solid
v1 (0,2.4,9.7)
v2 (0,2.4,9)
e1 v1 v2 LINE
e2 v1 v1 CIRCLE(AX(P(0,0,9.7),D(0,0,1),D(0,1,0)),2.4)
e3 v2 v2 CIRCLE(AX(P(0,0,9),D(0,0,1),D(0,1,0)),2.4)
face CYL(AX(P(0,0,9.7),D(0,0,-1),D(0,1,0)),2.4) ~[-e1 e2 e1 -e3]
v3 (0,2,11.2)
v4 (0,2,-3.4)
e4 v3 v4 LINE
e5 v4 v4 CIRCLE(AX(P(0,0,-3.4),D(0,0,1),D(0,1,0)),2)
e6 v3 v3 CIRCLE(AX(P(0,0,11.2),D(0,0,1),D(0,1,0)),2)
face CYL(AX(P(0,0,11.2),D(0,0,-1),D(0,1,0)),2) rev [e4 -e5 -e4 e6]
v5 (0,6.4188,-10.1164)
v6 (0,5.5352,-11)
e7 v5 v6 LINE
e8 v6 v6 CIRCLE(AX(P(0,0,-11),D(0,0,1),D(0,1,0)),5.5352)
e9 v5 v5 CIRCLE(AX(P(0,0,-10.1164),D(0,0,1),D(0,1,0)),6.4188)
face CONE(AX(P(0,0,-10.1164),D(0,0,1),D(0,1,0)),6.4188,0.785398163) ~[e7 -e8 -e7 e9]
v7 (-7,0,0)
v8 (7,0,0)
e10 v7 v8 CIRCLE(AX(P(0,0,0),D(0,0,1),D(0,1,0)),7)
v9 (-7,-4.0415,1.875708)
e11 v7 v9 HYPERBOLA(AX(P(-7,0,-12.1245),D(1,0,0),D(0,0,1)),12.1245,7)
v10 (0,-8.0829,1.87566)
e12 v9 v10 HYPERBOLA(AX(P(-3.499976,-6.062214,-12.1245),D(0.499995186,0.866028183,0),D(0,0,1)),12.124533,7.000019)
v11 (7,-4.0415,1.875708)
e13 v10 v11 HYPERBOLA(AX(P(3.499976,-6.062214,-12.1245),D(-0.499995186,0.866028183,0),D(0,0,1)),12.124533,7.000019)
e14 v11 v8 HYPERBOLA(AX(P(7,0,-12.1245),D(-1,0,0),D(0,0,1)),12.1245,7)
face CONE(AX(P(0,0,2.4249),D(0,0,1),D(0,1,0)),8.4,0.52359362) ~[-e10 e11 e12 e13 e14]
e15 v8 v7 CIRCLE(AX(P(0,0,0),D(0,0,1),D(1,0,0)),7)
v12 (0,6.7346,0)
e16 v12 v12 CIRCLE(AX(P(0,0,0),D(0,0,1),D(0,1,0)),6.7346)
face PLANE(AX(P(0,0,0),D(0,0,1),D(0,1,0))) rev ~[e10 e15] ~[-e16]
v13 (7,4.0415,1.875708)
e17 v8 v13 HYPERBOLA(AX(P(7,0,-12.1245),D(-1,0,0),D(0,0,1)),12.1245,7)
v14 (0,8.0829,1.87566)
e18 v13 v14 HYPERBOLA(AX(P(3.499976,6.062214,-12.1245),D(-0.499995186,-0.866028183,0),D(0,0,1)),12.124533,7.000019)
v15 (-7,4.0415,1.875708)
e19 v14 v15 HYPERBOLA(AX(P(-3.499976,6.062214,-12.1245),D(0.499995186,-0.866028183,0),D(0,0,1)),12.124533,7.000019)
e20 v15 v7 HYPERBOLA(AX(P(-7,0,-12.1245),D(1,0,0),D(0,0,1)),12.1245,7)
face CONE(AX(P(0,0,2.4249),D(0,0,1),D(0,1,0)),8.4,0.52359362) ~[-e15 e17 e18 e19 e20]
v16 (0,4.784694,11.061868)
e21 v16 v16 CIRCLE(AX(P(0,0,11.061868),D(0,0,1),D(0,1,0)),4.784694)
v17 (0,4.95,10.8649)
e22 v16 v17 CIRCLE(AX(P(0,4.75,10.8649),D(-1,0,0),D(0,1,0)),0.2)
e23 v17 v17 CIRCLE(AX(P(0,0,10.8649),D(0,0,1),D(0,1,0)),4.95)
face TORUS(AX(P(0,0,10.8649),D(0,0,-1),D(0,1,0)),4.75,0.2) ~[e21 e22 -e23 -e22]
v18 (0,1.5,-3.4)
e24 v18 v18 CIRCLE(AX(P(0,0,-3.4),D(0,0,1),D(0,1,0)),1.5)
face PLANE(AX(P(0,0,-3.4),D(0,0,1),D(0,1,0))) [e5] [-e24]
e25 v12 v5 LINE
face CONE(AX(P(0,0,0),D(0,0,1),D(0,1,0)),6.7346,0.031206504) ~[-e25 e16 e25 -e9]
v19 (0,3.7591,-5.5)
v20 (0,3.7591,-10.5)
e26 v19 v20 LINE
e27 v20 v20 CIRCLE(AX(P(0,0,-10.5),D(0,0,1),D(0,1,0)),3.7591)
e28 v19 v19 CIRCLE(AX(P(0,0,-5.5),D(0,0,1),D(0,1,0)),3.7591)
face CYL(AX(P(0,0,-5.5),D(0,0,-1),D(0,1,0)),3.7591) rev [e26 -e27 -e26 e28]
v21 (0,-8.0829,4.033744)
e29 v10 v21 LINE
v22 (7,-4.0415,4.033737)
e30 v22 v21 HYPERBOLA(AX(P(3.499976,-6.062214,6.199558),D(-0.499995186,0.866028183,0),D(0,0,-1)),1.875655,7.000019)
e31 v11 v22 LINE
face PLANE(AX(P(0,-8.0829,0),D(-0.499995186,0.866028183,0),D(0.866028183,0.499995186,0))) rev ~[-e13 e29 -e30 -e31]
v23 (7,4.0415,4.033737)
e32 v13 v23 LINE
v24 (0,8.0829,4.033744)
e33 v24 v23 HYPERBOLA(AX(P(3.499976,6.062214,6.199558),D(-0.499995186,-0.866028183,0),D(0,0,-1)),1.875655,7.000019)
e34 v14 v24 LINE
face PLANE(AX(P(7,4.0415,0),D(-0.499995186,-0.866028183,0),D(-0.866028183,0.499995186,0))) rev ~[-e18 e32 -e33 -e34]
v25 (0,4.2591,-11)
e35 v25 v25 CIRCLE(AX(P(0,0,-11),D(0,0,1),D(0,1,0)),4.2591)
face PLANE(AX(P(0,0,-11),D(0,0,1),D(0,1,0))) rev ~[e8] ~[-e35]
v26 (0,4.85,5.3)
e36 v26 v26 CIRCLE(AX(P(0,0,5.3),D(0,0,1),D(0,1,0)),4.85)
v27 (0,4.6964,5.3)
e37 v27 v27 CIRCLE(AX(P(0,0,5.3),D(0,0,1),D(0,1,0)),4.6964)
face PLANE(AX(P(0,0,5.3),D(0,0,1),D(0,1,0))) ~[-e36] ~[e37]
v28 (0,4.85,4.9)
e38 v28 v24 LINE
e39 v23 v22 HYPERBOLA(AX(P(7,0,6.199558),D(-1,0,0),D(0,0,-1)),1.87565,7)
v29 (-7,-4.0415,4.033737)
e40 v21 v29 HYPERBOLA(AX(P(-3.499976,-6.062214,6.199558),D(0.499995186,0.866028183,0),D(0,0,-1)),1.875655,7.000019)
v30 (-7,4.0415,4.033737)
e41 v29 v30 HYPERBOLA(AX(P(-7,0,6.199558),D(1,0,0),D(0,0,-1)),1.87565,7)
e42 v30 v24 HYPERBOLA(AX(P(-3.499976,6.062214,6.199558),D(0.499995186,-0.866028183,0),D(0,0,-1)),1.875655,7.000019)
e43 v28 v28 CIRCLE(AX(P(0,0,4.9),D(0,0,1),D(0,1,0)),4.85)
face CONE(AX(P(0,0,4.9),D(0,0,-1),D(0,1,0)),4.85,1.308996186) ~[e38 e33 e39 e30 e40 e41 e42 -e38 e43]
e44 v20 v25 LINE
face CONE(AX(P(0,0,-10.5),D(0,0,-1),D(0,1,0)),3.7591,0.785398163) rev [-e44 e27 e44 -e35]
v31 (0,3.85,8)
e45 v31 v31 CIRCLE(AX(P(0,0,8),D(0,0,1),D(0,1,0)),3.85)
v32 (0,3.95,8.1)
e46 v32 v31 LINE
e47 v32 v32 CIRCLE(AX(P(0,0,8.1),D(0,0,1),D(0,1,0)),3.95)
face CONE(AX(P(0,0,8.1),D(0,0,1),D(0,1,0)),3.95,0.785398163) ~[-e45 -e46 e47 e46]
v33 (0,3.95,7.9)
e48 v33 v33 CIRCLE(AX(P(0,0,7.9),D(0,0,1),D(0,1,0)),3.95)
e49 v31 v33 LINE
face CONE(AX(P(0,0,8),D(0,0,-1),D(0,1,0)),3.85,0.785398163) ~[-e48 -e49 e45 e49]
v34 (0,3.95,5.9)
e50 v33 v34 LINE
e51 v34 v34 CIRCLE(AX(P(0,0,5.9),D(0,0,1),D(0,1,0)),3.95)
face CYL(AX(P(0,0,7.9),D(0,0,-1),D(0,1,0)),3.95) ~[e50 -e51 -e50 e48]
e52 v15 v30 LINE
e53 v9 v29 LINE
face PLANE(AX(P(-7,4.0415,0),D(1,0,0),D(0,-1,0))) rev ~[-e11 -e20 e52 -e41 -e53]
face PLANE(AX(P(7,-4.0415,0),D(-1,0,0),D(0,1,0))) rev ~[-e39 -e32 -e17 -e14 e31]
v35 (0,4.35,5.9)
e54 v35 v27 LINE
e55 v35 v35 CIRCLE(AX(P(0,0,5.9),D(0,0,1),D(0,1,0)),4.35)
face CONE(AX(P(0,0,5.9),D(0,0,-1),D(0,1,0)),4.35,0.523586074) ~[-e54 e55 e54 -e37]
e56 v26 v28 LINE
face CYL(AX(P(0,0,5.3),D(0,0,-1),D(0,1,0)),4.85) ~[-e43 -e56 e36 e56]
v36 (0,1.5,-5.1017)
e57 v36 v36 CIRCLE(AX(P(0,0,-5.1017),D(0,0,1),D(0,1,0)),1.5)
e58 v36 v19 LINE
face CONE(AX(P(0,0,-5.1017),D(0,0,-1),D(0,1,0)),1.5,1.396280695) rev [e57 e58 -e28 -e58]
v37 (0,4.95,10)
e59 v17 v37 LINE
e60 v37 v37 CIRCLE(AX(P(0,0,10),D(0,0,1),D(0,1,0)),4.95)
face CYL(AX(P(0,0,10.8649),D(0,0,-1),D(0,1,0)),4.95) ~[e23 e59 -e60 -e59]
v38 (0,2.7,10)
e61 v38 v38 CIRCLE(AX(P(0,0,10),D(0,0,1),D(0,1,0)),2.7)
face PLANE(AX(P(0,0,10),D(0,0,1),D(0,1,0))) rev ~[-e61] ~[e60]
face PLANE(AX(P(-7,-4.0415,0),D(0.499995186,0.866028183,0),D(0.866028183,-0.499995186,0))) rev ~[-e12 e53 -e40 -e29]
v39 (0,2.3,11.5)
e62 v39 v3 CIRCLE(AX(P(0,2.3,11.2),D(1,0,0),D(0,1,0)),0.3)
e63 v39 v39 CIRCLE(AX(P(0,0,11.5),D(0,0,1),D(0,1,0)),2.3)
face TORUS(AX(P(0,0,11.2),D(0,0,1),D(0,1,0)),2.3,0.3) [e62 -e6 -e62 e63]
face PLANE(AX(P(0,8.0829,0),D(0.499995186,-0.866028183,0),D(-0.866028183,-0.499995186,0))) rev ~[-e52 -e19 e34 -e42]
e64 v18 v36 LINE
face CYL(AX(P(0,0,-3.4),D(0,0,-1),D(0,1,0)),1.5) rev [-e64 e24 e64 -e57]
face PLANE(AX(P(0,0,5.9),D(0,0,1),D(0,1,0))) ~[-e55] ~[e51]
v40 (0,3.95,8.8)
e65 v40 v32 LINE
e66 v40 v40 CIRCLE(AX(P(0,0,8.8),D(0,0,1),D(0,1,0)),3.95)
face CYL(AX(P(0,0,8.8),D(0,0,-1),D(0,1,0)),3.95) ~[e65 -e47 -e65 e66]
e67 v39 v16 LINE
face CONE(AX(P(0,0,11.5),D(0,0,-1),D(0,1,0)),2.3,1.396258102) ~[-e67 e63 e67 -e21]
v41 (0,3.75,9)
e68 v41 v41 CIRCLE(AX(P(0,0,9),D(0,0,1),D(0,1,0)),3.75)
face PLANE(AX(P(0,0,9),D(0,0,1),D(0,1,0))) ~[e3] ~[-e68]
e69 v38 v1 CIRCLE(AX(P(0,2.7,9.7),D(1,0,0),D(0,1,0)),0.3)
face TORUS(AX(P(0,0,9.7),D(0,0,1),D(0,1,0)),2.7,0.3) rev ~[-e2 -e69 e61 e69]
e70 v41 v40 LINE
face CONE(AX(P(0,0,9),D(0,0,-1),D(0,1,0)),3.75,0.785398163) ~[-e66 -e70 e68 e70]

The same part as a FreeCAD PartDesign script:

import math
import FreeCAD as App
import Part
import Sketcher

V = App.Vector
Q = App.Units.Quantity

doc = App.newDocument("Part")
body = doc.addObject("PartDesign::Body", "Body")

sketch1 = body.newObject("Sketcher::SketchObject", "Sketch")
sketch1.AttachmentSupport = (doc.getObject("YZ_Plane"), [""])
sketch1.MapMode = "FlatFace"
sketch1.addGeometry([
    Part.LineSegment(V(2.3, 11.5, 0), V(0, 11.5, 0)),
    Part.LineSegment(V(0, 11.5, 0), V(0, 0, 0)),
    Part.LineSegment(V(0, 0, 0), V(7, 0, 0)),
    Part.LineSegment(V(7, 0, 0), V(8.4, 2.42, 0)),
    Part.LineSegment(V(8.4, 2.42, 0), V(8.4, 5.9, 0)),
    Part.LineSegment(V(8.4, 5.9, 0), V(3.95, 5.9, 0)),
    Part.LineSegment(V(3.95, 5.9, 0), V(3.95, 7.9, 0)),
    Part.LineSegment(V(3.95, 7.9, 0), V(3.85, 8, 0)),
    Part.LineSegment(V(3.85, 8, 0), V(3.95, 8.1, 0)),
    Part.LineSegment(V(3.95, 8.1, 0), V(3.95, 8.8, 0)),
    Part.LineSegment(V(3.95, 8.8, 0), V(3.75, 9, 0)),
    Part.LineSegment(V(3.75, 9, 0), V(2.4, 9, 0)),
    Part.LineSegment(V(2.4, 9, 0), V(2.4, 9.7, 0)),
    Part.ArcOfCircle(Part.Circle(V(2.7, 9.7, 0), V(0, 0, 1), 0.3), math.radians(90), math.radians(180)),
    Part.LineSegment(V(2.7, 10, 0), V(4.95, 10, 0)),
    Part.LineSegment(V(4.95, 10, 0), V(4.95, 10.86, 0)),
    Part.ArcOfCircle(Part.Circle(V(4.75, 10.86, 0), V(0, 0, 1), 0.2), math.radians(0), math.radians(80)),
    Part.LineSegment(V(4.78, 11.06, 0), V(2.3, 11.5, 0)),
], False)
sketch1.addConstraint([
    Sketcher.Constraint("Coincident", 0, 2, 1, 1),
    Sketcher.Constraint("Coincident", 1, 2, 2, 1),
    Sketcher.Constraint("Coincident", 2, 2, 3, 1),
    Sketcher.Constraint("Coincident", 3, 2, 4, 1),
    Sketcher.Constraint("Coincident", 4, 2, 5, 1),
    Sketcher.Constraint("Coincident", 5, 2, 6, 1),
    Sketcher.Constraint("Coincident", 6, 2, 7, 1),
    Sketcher.Constraint("Coincident", 7, 2, 8, 1),
    Sketcher.Constraint("Coincident", 8, 2, 9, 1),
    Sketcher.Constraint("Coincident", 9, 2, 10, 1),
    Sketcher.Constraint("Coincident", 10, 2, 11, 1),
    Sketcher.Constraint("Coincident", 11, 2, 12, 1),
    Sketcher.Constraint("Tangent", 12, 2, 13, 2),
    Sketcher.Constraint("Tangent", 13, 1, 14, 1),
    Sketcher.Constraint("Coincident", 14, 2, 15, 1),
    Sketcher.Constraint("Tangent", 15, 2, 16, 1),
    Sketcher.Constraint("Tangent", 16, 2, 17, 1),
    Sketcher.Constraint("Coincident", 17, 2, 0, 1),
    Sketcher.Constraint("Horizontal", 0),
    Sketcher.Constraint("Vertical", 1),
    Sketcher.Constraint("Horizontal", 2),
    Sketcher.Constraint("Vertical", 4),
    Sketcher.Constraint("Horizontal", 5),
    Sketcher.Constraint("Vertical", 6),
    Sketcher.Constraint("Vertical", 9),
    Sketcher.Constraint("Horizontal", 11),
    Sketcher.Constraint("Vertical", 12),
    Sketcher.Constraint("Horizontal", 14),
    Sketcher.Constraint("Vertical", 15),
    Sketcher.Constraint("Coincident", 1, 2, -1, 1),
    Sketcher.Constraint("Perpendicular", 7, 8),
    Sketcher.Constraint("Perpendicular", 8, 10),
    Sketcher.Constraint("Vertical", 6, 2, 8, 2),
    Sketcher.Constraint("Equal", 9, 12),
    Sketcher.Constraint("Equal", 7, 8),
    Sketcher.Constraint("Radius", 13, Q("0.3 mm")),
    Sketcher.Constraint("Radius", 16, Q("0.2 mm")),
    Sketcher.Constraint("DistanceX", 2, 1, 2, 2, Q("7 mm")),
    Sketcher.Constraint("DistanceY", 6, 1, 6, 2, Q("2 mm")),
    Sketcher.Constraint("Angle", 3, Q("60.0003 deg")),
    Sketcher.Constraint("Angle", 17, Q("170.0004 deg")),
    Sketcher.Constraint("DistanceX", 0, 2, 0, 1, Q("2.3 mm")),
    Sketcher.Constraint("DistanceY", 1, 2, 1, 1, Q("11.5 mm")),
    Sketcher.Constraint("DistanceY", 9, 1, 9, 2, Q("0.7 mm")),
    Sketcher.Constraint("DistanceY", -1, 1, 7, 2, Q("8 mm")),
    Sketcher.Constraint("DistanceY", -1, 1, 10, 2, Q("9 mm")),
    Sketcher.Constraint("DistanceX", 9, 2, 14, 2, Q("1 mm")),
    Sketcher.Constraint("Distance", 3, Q("2.8 mm")),
    Sketcher.Constraint("DistanceX", 5, 2, 5, 1, Q("4.45 mm")),
    Sketcher.Constraint("DistanceX", 11, 2, 11, 1, Q("1.35 mm")),
    Sketcher.Constraint("DistanceX", 14, 1, 14, 2, Q("2.25 mm")),
])
revolution = body.newObject("PartDesign::Revolution", "Revolution")
revolution.Profile = sketch1
revolution.ReferenceAxis = (sketch1, ["V_Axis"])
revolution.Angle = 360

sketch2 = body.newObject("Sketcher::SketchObject", "Sketch001")
sketch2.AttachmentSupport = (doc.getObject("XY_Plane"), [""])
sketch2.MapMode = "FlatFace"
sketch2.addGeometry([
    Part.LineSegment(V(-14, 14, 0), V(-14, -14, 0)),
    Part.LineSegment(V(-14, -14, 0), V(14, -14, 0)),
    Part.LineSegment(V(14, -14, 0), V(14, 14, 0)),
    Part.LineSegment(V(14, 14, 0), V(-14, 14, 0)),
    Part.LineSegment(V(0, -8, 0), V(-7, -4, 0)),
    Part.LineSegment(V(-7, -4, 0), V(-7, 4, 0)),
    Part.LineSegment(V(-7, 4, 0), V(0, 8, 0)),
    Part.LineSegment(V(0, 8, 0), V(7, 4, 0)),
    Part.LineSegment(V(7, 4, 0), V(7, -4, 0)),
    Part.LineSegment(V(7, -4, 0), V(0, -8, 0)),
], False)
sketch2.addConstraint([
    Sketcher.Constraint("Coincident", 0, 2, 1, 1),
    Sketcher.Constraint("Coincident", 1, 2, 2, 1),
    Sketcher.Constraint("Coincident", 2, 2, 3, 1),
    Sketcher.Constraint("Coincident", 3, 2, 0, 1),
    Sketcher.Constraint("Coincident", 4, 2, 5, 1),
    Sketcher.Constraint("Coincident", 5, 2, 6, 1),
    Sketcher.Constraint("Coincident", 6, 2, 7, 1),
    Sketcher.Constraint("Coincident", 7, 2, 8, 1),
    Sketcher.Constraint("Coincident", 8, 2, 9, 1),
    Sketcher.Constraint("Coincident", 9, 2, 4, 1),
    Sketcher.Constraint("Vertical", 0),
    Sketcher.Constraint("Horizontal", 1),
    Sketcher.Constraint("Vertical", 2),
    Sketcher.Constraint("Horizontal", 3),
    Sketcher.Constraint("Vertical", 5),
    Sketcher.Constraint("Vertical", 8),
    Sketcher.Constraint("Symmetric", 0, 2, 2, 2, -1, 1),
    Sketcher.Constraint("Symmetric", 4, 2, 7, 2, -1, 1),
    Sketcher.Constraint("Symmetric", 6, 2, 9, 2, -1, 1),
    Sketcher.Constraint("PointOnObject", 6, 2, -2),
    Sketcher.Constraint("Parallel", 6, 9),
    Sketcher.Constraint("Horizontal", 5, 2, 7, 2),
    Sketcher.Constraint("Equal", 3, 0),
    Sketcher.Constraint("DistanceX", 1, 1, 1, 2, Q("28 mm")),
    Sketcher.Constraint("Angle", 4, Q("150.0003 deg")),
    Sketcher.Constraint("DistanceX", 4, 2, -1, 1, Q("7 mm")),
    Sketcher.Constraint("DistanceY", 5, 1, 5, 2, Q("8.083 mm")),
])
pocket1 = body.newObject("PartDesign::Pocket", "Pocket")
pocket1.Profile = sketch2
pocket1.Length = 6
pocket1.Reversed = True

sketch3 = body.newObject("Sketcher::SketchObject", "Sketch002")
sketch3.AttachmentSupport = (doc.getObject("YZ_Plane"), [""])
sketch3.MapMode = "FlatFace"
sketch3.addGeometry([
    Part.LineSegment(V(14.85, 5.9, 0), V(4.35, 5.9, 0)),
    Part.LineSegment(V(4.35, 5.9, 0), V(4.7, 5.3, 0)),
    Part.LineSegment(V(4.7, 5.3, 0), V(4.85, 5.3, 0)),
    Part.LineSegment(V(4.85, 5.3, 0), V(4.85, 4.9, 0)),
    Part.LineSegment(V(4.85, 4.9, 0), V(14.85, 2.22, 0)),
    Part.LineSegment(V(14.85, 2.22, 0), V(14.85, 5.9, 0)),
], False)
sketch3.addConstraint([
    Sketcher.Constraint("Coincident", 0, 2, 1, 1),
    Sketcher.Constraint("Coincident", 1, 2, 2, 1),
    Sketcher.Constraint("Coincident", 2, 2, 3, 1),
    Sketcher.Constraint("Coincident", 3, 2, 4, 1),
    Sketcher.Constraint("Coincident", 4, 2, 5, 1),
    Sketcher.Constraint("Coincident", 5, 2, 0, 1),
    Sketcher.Constraint("Horizontal", 0),
    Sketcher.Constraint("Horizontal", 2),
    Sketcher.Constraint("Vertical", 3),
    Sketcher.Constraint("Vertical", 5),
    Sketcher.Constraint("Angle", 1, Q("-60.0007 deg")),
    Sketcher.Constraint("Angle", 4, Q("-15 deg")),
    Sketcher.Constraint("DistanceX", 0, 2, 0, 1, Q("10.5 mm")),
    Sketcher.Constraint("DistanceY", 3, 2, 3, 1, Q("0.4 mm")),
    Sketcher.Constraint("DistanceY", 3, 2, 0, 2, Q("1 mm")),
    Sketcher.Constraint("DistanceX", 3, 2, 4, 2, Q("10 mm")),
    Sketcher.Constraint("DistanceY", -1, 1, 0, 2, Q("5.9 mm")),
    Sketcher.Constraint("DistanceX", -1, 1, 0, 2, Q("4.35 mm")),
])
groove = body.newObject("PartDesign::Groove", "Groove")
groove.Profile = sketch3
groove.ReferenceAxis = (sketch3, ["V_Axis"])
groove.Angle = 360

sketch4 = body.newObject("Sketcher::SketchObject", "Sketch003")
sketch4.AttachmentSupport = (doc.getObject("YZ_Plane"), [""])
sketch4.MapMode = "FlatFace"
sketch4.addGeometry([
    Part.LineSegment(V(6.7, 0, 0), V(0, 0, 0)),
    Part.LineSegment(V(0, 0, 0), V(0, -11, 0)),
    Part.LineSegment(V(0, -11, 0), V(5.5, -11, 0)),
    Part.LineSegment(V(5.5, -11, 0), V(6.4, -10.1, 0)),
    Part.LineSegment(V(6.4, -10.1, 0), V(6.7, 0, 0)),
], False)
sketch4.addConstraint([
    Sketcher.Constraint("Coincident", 0, 2, 1, 1),
    Sketcher.Constraint("Coincident", 1, 2, 2, 1),
    Sketcher.Constraint("Coincident", 2, 2, 3, 1),
    Sketcher.Constraint("Coincident", 3, 2, 4, 1),
    Sketcher.Constraint("Coincident", 4, 2, 0, 1),
    Sketcher.Constraint("Horizontal", 0),
    Sketcher.Constraint("Vertical", 1),
    Sketcher.Constraint("Horizontal", 2),
    Sketcher.Constraint("Coincident", 0, 2, -1, 1),
    Sketcher.Constraint("DistanceY", 1, 2, 1, 1, Q("11 mm")),
    Sketcher.Constraint("Angle", 3, Q("45 deg")),
    Sketcher.Constraint("DistanceX", 0, 2, 0, 1, Q("6.7346 mm")),
    Sketcher.Constraint("DistanceX", 2, 1, 2, 2, Q("5.5352 mm")),
    Sketcher.Constraint("Distance", 3, Q("1.2496 mm")),
])
revolution2 = body.newObject("PartDesign::Revolution", "Revolution001")
revolution2.Profile = sketch4
revolution2.ReferenceAxis = (sketch4, ["V_Axis"])
revolution2.Angle = 360

sketch5 = body.newObject("Sketcher::SketchObject", "Sketch004")
sketch5.AttachmentSupport = (doc.getObject("YZ_Plane"), [""])
sketch5.MapMode = "FlatFace"
sketch5.addGeometry([
    Part.LineSegment(V(2.3, 11.5, 0), V(0, 11.5, 0)),
    Part.LineSegment(V(0, 11.5, 0), V(0, -11, 0)),
    Part.LineSegment(V(0, -11, 0), V(4.26, -11, 0)),
    Part.LineSegment(V(4.26, -11, 0), V(3.76, -10.5, 0)),
    Part.LineSegment(V(3.76, -10.5, 0), V(3.76, -5.5, 0)),
    Part.LineSegment(V(3.76, -5.5, 0), V(1.5, -5.1, 0)),
    Part.LineSegment(V(1.5, -5.1, 0), V(1.5, -3.4, 0)),
    Part.LineSegment(V(1.5, -3.4, 0), V(2, -3.4, 0)),
    Part.LineSegment(V(2, -3.4, 0), V(2, 11.2, 0)),
    Part.ArcOfCircle(Part.Circle(V(2.3, 11.2, 0), V(0, 0, 1), 0.3), math.radians(90), math.radians(180)),
], False)
sketch5.addConstraint([
    Sketcher.Constraint("Coincident", 0, 2, 1, 1),
    Sketcher.Constraint("Coincident", 1, 2, 2, 1),
    Sketcher.Constraint("Coincident", 2, 2, 3, 1),
    Sketcher.Constraint("Coincident", 3, 2, 4, 1),
    Sketcher.Constraint("Coincident", 4, 2, 5, 1),
    Sketcher.Constraint("Coincident", 5, 2, 6, 1),
    Sketcher.Constraint("Coincident", 6, 2, 7, 1),
    Sketcher.Constraint("Coincident", 7, 2, 8, 1),
    Sketcher.Constraint("Tangent", 8, 2, 9, 2),
    Sketcher.Constraint("Tangent", 9, 1, 0, 1),
    Sketcher.Constraint("Horizontal", 0),
    Sketcher.Constraint("Vertical", 1),
    Sketcher.Constraint("Horizontal", 2),
    Sketcher.Constraint("Vertical", 4),
    Sketcher.Constraint("Vertical", 6),
    Sketcher.Constraint("Horizontal", 7),
    Sketcher.Constraint("Vertical", 8),
    Sketcher.Constraint("PointOnObject", 0, 2, -2),
    Sketcher.Constraint("Radius", 9, Q("0.3 mm")),
    Sketcher.Constraint("DistanceY", 4, 1, 4, 2, Q("5 mm")),
    Sketcher.Constraint("Angle", 3, Q("135 deg")),
    Sketcher.Constraint("Angle", 5, Q("170.001 deg")),
    Sketcher.Constraint("DistanceX", 0, 2, 0, 1, Q("2.3 mm")),
    Sketcher.Constraint("DistanceX", 7, 1, 7, 2, Q("0.5 mm")),
    Sketcher.Constraint("DistanceY", 1, 2, 1, 1, Q("22.5 mm")),
    Sketcher.Constraint("DistanceY", 8, 1, 8, 2, Q("14.6 mm")),
    Sketcher.Constraint("DistanceY", 1, 2, -1, 1, Q("11 mm")),
    Sketcher.Constraint("DistanceY", 3, 2, 0, 2, Q("22 mm")),
    Sketcher.Constraint("DistanceX", 2, 1, 2, 2, Q("4.259 mm")),
])
groove2 = body.newObject("PartDesign::Groove", "Groove001")
groove2.Profile = sketch5
groove2.ReferenceAxis = (sketch5, ["V_Axis"])
groove2.Angle = 360

doc.recompute()
